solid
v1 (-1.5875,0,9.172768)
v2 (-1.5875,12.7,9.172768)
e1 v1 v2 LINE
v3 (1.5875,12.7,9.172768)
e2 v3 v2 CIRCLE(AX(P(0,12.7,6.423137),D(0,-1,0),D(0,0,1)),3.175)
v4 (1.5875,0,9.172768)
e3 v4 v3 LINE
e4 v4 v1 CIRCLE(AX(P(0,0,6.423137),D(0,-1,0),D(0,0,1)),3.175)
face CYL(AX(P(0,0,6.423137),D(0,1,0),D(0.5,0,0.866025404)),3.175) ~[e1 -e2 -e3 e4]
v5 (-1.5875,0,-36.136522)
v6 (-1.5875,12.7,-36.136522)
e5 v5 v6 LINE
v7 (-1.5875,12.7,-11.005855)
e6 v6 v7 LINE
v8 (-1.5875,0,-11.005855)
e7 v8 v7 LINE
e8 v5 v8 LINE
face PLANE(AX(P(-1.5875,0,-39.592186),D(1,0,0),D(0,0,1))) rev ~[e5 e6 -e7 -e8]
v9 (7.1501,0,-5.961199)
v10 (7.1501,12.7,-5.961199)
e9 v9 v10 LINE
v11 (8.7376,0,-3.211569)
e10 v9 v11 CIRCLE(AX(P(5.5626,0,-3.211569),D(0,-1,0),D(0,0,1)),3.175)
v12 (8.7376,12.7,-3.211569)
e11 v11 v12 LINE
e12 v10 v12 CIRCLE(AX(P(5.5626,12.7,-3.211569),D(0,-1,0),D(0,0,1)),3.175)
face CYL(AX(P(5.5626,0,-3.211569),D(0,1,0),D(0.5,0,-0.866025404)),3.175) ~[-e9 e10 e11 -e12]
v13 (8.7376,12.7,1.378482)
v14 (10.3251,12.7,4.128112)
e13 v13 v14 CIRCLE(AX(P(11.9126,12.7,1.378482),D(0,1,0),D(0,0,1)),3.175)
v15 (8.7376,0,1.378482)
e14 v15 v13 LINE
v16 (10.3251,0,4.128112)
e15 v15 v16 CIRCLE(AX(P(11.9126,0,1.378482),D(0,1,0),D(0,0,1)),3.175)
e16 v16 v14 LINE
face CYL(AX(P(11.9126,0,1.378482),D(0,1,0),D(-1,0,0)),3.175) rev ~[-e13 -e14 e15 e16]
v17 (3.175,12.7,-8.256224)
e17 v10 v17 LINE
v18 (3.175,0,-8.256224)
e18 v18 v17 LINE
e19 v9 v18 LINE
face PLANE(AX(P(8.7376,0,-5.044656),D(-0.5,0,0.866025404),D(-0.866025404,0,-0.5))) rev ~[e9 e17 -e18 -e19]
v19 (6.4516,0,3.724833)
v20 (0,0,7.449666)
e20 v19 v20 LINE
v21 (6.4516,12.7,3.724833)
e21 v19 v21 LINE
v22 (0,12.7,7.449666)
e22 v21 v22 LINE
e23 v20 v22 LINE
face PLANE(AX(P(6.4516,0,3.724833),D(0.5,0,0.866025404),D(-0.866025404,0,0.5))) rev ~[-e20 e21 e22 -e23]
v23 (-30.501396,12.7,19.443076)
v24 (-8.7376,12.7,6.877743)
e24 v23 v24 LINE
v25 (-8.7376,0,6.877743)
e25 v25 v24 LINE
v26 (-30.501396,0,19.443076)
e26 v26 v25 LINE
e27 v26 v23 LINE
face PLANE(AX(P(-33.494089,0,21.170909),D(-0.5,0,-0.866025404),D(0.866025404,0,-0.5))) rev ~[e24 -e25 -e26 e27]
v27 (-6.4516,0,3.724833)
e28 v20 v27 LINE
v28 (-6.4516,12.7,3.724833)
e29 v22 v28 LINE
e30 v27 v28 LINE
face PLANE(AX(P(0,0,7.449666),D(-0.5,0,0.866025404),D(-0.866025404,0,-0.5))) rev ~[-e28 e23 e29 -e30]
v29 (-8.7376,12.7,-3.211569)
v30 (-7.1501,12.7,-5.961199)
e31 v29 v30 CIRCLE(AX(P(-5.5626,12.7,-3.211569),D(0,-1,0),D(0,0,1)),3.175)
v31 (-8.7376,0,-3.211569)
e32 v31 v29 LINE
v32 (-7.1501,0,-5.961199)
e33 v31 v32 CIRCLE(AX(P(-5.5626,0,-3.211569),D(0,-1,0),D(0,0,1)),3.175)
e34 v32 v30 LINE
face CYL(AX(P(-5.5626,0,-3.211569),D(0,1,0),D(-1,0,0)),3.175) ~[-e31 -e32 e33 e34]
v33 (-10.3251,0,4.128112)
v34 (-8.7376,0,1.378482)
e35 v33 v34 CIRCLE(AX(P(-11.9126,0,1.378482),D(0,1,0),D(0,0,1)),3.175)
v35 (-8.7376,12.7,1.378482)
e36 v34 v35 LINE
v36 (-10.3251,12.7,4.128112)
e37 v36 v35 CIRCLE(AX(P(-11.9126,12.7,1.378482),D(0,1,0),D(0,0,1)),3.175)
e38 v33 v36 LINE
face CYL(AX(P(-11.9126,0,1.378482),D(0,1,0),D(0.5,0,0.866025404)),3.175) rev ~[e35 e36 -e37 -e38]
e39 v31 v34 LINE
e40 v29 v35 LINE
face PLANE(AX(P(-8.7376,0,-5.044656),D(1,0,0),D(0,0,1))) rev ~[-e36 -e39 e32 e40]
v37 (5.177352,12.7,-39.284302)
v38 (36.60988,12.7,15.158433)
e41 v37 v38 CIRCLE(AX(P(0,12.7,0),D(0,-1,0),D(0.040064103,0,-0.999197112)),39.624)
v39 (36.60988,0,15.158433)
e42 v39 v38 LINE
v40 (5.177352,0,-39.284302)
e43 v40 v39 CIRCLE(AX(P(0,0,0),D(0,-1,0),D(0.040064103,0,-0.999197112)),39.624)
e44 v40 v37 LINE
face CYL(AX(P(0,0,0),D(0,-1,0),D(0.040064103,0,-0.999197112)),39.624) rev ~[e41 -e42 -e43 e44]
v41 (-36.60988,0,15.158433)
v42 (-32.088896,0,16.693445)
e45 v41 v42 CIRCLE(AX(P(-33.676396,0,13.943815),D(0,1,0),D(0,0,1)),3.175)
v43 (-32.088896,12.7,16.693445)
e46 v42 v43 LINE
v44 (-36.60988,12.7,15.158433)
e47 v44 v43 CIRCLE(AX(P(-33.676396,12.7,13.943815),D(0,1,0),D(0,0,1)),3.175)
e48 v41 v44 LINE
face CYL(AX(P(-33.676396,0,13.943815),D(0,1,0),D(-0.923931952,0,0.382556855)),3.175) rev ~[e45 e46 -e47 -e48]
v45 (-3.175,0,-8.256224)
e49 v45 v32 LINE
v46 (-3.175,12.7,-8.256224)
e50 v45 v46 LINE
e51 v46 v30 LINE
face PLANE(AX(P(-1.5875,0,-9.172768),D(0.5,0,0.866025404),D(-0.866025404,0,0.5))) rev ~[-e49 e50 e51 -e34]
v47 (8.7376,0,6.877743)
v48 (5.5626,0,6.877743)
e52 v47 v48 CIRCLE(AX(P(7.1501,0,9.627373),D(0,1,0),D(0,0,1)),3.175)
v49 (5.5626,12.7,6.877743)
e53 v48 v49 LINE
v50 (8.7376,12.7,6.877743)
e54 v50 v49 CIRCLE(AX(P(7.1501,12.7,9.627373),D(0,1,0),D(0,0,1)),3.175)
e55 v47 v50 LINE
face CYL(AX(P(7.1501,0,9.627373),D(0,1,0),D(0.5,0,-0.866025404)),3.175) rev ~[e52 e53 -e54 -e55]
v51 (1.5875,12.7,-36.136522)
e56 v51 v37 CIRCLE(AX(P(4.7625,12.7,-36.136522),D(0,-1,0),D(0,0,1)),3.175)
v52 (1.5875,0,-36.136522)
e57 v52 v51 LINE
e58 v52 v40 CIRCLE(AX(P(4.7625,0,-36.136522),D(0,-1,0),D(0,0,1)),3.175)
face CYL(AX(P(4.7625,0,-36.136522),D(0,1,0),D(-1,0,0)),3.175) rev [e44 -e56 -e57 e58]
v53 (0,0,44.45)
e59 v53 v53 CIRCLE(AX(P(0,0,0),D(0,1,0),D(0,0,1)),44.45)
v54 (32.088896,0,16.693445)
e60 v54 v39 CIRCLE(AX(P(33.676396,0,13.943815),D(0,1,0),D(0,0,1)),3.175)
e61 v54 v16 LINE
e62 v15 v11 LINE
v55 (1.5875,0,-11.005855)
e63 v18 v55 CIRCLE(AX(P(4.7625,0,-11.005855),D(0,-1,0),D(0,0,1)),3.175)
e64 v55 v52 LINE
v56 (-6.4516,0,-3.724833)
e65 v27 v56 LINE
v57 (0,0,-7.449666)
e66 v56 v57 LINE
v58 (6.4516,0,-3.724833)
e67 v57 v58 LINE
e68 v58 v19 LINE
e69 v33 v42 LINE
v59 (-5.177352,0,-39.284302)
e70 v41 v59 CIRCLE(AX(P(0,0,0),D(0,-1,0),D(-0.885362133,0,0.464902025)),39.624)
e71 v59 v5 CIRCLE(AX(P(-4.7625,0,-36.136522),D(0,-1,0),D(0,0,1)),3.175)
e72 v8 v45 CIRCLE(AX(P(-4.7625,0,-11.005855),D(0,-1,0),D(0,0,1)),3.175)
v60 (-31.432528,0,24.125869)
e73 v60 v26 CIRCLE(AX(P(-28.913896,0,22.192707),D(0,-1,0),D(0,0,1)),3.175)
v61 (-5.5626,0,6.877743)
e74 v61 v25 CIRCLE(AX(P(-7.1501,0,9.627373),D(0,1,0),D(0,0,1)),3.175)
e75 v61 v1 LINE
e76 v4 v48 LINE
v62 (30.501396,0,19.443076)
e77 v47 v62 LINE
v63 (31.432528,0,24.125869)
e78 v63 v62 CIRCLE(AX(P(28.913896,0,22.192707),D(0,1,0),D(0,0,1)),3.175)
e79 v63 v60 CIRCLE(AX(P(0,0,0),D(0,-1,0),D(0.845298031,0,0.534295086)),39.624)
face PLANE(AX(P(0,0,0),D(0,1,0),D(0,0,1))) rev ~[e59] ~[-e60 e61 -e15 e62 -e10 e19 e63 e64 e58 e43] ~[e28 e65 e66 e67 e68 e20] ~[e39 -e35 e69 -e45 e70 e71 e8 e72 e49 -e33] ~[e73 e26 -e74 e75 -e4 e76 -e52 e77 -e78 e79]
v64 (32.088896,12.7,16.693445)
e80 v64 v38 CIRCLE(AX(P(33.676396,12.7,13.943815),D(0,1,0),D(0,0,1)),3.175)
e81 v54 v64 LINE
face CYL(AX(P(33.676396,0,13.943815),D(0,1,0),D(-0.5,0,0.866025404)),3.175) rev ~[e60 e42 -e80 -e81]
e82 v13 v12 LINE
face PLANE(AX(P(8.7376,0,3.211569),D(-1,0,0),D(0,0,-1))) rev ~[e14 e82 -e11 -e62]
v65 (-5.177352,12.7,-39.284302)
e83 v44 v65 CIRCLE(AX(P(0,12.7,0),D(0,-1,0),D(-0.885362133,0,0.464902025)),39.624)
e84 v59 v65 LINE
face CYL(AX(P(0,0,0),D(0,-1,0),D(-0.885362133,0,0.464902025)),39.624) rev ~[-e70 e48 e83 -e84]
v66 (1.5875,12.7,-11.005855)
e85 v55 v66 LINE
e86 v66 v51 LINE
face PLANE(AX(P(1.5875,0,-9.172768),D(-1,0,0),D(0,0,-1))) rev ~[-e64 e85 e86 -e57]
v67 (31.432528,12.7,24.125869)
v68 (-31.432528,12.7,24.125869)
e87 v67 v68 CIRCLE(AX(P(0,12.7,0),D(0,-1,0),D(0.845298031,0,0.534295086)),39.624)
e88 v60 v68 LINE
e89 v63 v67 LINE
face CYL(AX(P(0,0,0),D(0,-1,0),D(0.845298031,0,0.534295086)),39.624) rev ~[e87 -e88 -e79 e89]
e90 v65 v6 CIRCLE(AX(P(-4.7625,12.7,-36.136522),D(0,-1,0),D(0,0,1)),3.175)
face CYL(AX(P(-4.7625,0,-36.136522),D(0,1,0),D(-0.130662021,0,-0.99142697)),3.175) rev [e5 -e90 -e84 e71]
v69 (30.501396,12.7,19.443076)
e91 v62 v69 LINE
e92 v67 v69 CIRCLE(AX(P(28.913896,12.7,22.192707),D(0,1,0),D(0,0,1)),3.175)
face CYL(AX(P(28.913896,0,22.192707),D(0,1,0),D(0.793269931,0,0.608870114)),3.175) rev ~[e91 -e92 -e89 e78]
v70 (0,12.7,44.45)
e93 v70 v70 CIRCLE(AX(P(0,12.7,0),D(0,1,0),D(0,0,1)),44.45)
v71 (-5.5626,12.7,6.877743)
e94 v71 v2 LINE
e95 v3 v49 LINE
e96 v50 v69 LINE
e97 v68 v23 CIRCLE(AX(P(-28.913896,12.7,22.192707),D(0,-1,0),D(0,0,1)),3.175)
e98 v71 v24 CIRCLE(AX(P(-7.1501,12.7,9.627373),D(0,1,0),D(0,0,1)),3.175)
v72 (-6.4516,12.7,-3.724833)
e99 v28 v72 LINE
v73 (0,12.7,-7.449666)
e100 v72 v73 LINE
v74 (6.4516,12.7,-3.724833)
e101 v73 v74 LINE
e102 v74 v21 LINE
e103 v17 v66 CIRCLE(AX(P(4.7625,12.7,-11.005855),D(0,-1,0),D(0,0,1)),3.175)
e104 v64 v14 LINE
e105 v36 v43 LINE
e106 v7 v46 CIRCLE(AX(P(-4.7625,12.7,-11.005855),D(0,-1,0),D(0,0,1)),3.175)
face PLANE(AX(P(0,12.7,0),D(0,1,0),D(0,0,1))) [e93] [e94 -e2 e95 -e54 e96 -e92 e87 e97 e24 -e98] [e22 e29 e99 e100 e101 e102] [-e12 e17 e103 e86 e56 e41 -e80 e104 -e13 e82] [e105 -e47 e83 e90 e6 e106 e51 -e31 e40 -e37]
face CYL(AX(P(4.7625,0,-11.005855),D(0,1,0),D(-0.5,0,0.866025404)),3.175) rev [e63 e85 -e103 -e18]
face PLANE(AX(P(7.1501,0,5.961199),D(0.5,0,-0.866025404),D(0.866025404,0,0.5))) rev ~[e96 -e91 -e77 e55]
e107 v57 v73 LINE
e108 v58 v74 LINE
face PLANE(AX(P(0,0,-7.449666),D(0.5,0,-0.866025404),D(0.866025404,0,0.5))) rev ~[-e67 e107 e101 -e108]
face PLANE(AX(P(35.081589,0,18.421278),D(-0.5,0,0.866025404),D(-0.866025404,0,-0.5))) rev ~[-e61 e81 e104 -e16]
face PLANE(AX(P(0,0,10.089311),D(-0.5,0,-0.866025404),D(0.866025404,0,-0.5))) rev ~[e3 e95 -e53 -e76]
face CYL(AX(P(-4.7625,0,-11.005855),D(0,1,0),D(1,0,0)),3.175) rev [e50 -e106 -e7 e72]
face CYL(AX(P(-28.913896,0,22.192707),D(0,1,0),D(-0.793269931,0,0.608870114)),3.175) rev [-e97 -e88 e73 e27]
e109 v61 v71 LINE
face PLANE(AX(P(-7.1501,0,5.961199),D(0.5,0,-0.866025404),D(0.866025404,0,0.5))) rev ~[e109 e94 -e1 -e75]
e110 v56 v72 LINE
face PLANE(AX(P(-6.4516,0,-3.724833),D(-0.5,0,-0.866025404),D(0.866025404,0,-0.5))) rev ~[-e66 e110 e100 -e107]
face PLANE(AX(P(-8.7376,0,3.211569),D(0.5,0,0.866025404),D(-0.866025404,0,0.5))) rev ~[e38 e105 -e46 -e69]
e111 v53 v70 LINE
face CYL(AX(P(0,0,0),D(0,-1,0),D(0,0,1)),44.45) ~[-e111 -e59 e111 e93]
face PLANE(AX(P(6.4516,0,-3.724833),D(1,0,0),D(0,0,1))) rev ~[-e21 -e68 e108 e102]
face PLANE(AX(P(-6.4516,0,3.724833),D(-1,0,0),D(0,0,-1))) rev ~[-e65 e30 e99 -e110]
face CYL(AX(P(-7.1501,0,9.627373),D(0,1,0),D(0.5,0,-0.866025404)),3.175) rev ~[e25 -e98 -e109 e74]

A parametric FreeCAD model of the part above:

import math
import FreeCAD as App
import Part
import Sketcher
Q = App.Units.Quantity


def edges_at(feature, points):
    """Names of the edges that pass closest to the given points."""
    edges = feature.Shape.Edges
    near = lambda p: min(range(len(edges)), key=lambda i: edges[i].distToShape(Part.Vertex(*p))[0])
    return sorted({f"Edge{near(p) + 1}" for p in points})

doc = App.newDocument("Part")
body = doc.addObject("PartDesign::Body", "Body")

# Sketch on XZ plane
sketch1 = doc.addObject("Sketcher::SketchObject", "Sketch")
body.addObject(sketch1)
sketch1.AttachmentSupport = (doc.XZ_Plane, [""])
sketch1.MapMode = "FlatFace"
sketch1.addGeometry(Part.Circle(App.Vector(0, 0, 0), App.Vector(0, 0, 1), 44), False)
sketch1.addGeometry(Part.ArcOfCircle(Part.Circle(App.Vector(0, 0, 0), App.Vector(0, 0, 1), 40), math.radians(152), math.radians(268)), False)
sketch1.addGeometry(Part.LineSegment(App.Vector(-2, -40, 0), App.Vector(-2, -9, 0)), False)
sketch1.addGeometry(Part.LineSegment(App.Vector(-2, -9, 0), App.Vector(-9, -5, 0)), False)
sketch1.addGeometry(Part.LineSegment(App.Vector(-9, -5, 0), App.Vector(-9, 3, 0)), False)
sketch1.addGeometry(Part.LineSegment(App.Vector(-9, 3, 0), App.Vector(-35, 18, 0)), False)
sketch1.addGeometry(Part.LineSegment(App.Vector(-6, 4, 0), App.Vector(-6, -4, 0)), False)
sketch1.addGeometry(Part.LineSegment(App.Vector(-6, -4, 0), App.Vector(0, -7, 0)), False)
sketch1.addGeometry(Part.LineSegment(App.Vector(0, -7, 0), App.Vector(6, -4, 0)), False)
sketch1.addGeometry(Part.LineSegment(App.Vector(6, -4, 0), App.Vector(6, 4, 0)), False)
sketch1.addGeometry(Part.LineSegment(App.Vector(6, 4, 0), App.Vector(0, 7, 0)), False)
sketch1.addGeometry(Part.LineSegment(App.Vector(0, 7, 0), App.Vector(-6, 4, 0)), False)
sketch1.addGeometry(Part.LineSegment(App.Vector(9, -5, 0), App.Vector(2, -9, 0)), False)
sketch1.addGeometry(Part.LineSegment(App.Vector(2, -9, 0), App.Vector(2, -40, 0)), False)
sketch1.addGeometry(Part.ArcOfCircle(Part.Circle(App.Vector(0, 0, 0), App.Vector(0, 0, 1), 40), math.radians(-88), math.radians(28)), False)
sketch1.addGeometry(Part.LineSegment(App.Vector(35, 18, 0), App.Vector(9, 3, 0)), False)
sketch1.addGeometry(Part.LineSegment(App.Vector(9, 3, 0), App.Vector(9, -5, 0)), False)
sketch1.addGeometry(Part.ArcOfCircle(Part.Circle(App.Vector(0, 0, 0), App.Vector(0, 0, 1), 40), math.radians(32), math.radians(148)), False)
sketch1.addGeometry(Part.LineSegment(App.Vector(-33, 21, 0), App.Vector(-7, 6, 0)), False)
sketch1.addGeometry(Part.LineSegment(App.Vector(-7, 6, 0), App.Vector(0, 10, 0)), False)
sketch1.addGeometry(Part.LineSegment(App.Vector(0, 10, 0), App.Vector(7, 6, 0)), False)
sketch1.addGeometry(Part.LineSegment(App.Vector(7, 6, 0), App.Vector(33, 21, 0)), False)
sketch1.addConstraint(Sketcher.Constraint("Coincident", 1, 2, 2, 1))
sketch1.addConstraint(Sketcher.Constraint("Coincident", 2, 2, 3, 1))
sketch1.addConstraint(Sketcher.Constraint("Coincident", 3, 2, 4, 1))
sketch1.addConstraint(Sketcher.Constraint("Coincident", 4, 2, 5, 1))
sketch1.addConstraint(Sketcher.Constraint("Coincident", 5, 2, 1, 1))
sketch1.addConstraint(Sketcher.Constraint("Coincident", 6, 2, 7, 1))
sketch1.addConstraint(Sketcher.Constraint("Coincident", 7, 2, 8, 1))
sketch1.addConstraint(Sketcher.Constraint("Coincident", 8, 2, 9, 1))
sketch1.addConstraint(Sketcher.Constraint("Coincident", 9, 2, 10, 1))
sketch1.addConstraint(Sketcher.Constraint("Coincident", 10, 2, 11, 1))
sketch1.addConstraint(Sketcher.Constraint("Coincident", 11, 2, 6, 1))
sketch1.addConstraint(Sketcher.Constraint("Coincident", 12, 2, 13, 1))
sketch1.addConstraint(Sketcher.Constraint("Coincident", 13, 2, 14, 1))
sketch1.addConstraint(Sketcher.Constraint("Coincident", 14, 2, 15, 1))
sketch1.addConstraint(Sketcher.Constraint("Coincident", 15, 2, 16, 1))
sketch1.addConstraint(Sketcher.Constraint("Coincident", 16, 2, 12, 1))
sketch1.addConstraint(Sketcher.Constraint("Coincident", 17, 2, 18, 1))
sketch1.addConstraint(Sketcher.Constraint("Coincident", 18, 2, 19, 1))
sketch1.addConstraint(Sketcher.Constraint("Coincident", 19, 2, 20, 1))
sketch1.addConstraint(Sketcher.Constraint("Coincident", 20, 2, 21, 1))
sketch1.addConstraint(Sketcher.Constraint("Coincident", 21, 2, 17, 1))
sketch1.addConstraint(Sketcher.Constraint("Vertical", 2))
sketch1.addConstraint(Sketcher.Constraint("Vertical", 4))
sketch1.addConstraint(Sketcher.Constraint("Vertical", 6))
sketch1.addConstraint(Sketcher.Constraint("Vertical", 9))
sketch1.addConstraint(Sketcher.Constraint("Vertical", 13))
sketch1.addConstraint(Sketcher.Constraint("Vertical", 16))
sketch1.addConstraint(Sketcher.Constraint("Coincident", 0, 3, -1, 1))
sketch1.addConstraint(Sketcher.Constraint("Coincident", 1, 3, -1, 1))
sketch1.addConstraint(Sketcher.Constraint("Coincident", 14, 3, -1, 1))
sketch1.addConstraint(Sketcher.Constraint("Coincident", 17, 3, -1, 1))
sketch1.addConstraint(Sketcher.Constraint("Equal", 1, 14))
sketch1.addConstraint(Sketcher.Constraint("Equal", 14, 17))
sketch1.addConstraint(Sketcher.Constraint("Symmetric", 6, 2, 9, 2, -1, 1))
sketch1.addConstraint(Sketcher.Constraint("Symmetric", 7, 2, 10, 2, -1, 1))
sketch1.addConstraint(Sketcher.Constraint("Symmetric", 2, 2, 12, 2, -2))
sketch1.addConstraint(Sketcher.Constraint("Symmetric", 4, 2, 15, 2, -2))
sketch1.addConstraint(Sketcher.Constraint("Symmetric", 18, 2, 20, 2, -2))
sketch1.addConstraint(Sketcher.Constraint("PointOnObject", 7, 2, -2))
sketch1.addConstraint(Sketcher.Constraint("PointOnObject", 19, 2, -2))
sketch1.addConstraint(Sketcher.Constraint("Parallel", 3, 5))
sketch1.addConstraint(Sketcher.Constraint("Parallel", 5, 7))
sketch1.addConstraint(Sketcher.Constraint("Parallel", 8, 11))
sketch1.addConstraint(Sketcher.Constraint("Parallel", 11, 12))
sketch1.addConstraint(Sketcher.Constraint("Parallel", 12, 15))
sketch1.addConstraint(Sketcher.Constraint("Parallel", 10, 18))
sketch1.addConstraint(Sketcher.Constraint("Parallel", 15, 19))
sketch1.addConstraint(Sketcher.Constraint("Parallel", 18, 20))
sketch1.addConstraint(Sketcher.Constraint("Parallel", 19, 21))
sketch1.addConstraint(Sketcher.Constraint("Equal", 15, 18))
sketch1.addConstraint(Sketcher.Constraint("Equal", 12, 19))
sketch1.addConstraint(Sketcher.Constraint("Diameter", 0, Q("3.5 in")))
sketch1.addConstraint(Sketcher.Constraint("Radius", 1, Q("1.56 in")))
sketch1.addConstraint(Sketcher.Constraint("Angle", 3, Q("150 deg")))
sketch1.addConstraint(Sketcher.Constraint("DistanceX", 3, 2, 6, 2, Q("0.09 in")))
sketch1.addConstraint(Sketcher.Constraint("DistanceX", 1, 2, -1, 1, Q("0.0625 in")))
sketch1.addConstraint(Sketcher.Constraint("DistanceX", 3, 2, -1, 1, Q("0.344 in")))
sketch1.addConstraint(Sketcher.Constraint("DistanceY", 9, 2, 14, 2, Q("0.5786002 in")))
sketch1.addConstraint(Sketcher.Constraint("DistanceY", 2, 1, 2, 2, Q("30.419418 mm")))
sketch1.addConstraint(Sketcher.Constraint("DistanceY", -1, 1, 18, 2, Q("5.961199 mm")))
pad1 = doc.addObject("PartDesign::Pad", "Pad")
body.addObject(pad1)
pad1.Profile = sketch1
pad1.Length = Q("0.5 in")
pad1.Reversed = True
doc.recompute()

fillet = doc.addObject("PartDesign::Fillet", "Fillet")
body.addObject(fillet)
fillet.Base = (pad1, edges_at(pad1, [
    (-8.738, 6.35, -5.045),
    (-1.587, 6.35, -9.173),
    (-1.587, 6.35, -39.592),
    (-35.082, 6.35, 18.421),
    (-8.738, 6.35, 3.212),
    (35.082, 6.35, 18.421),
    (1.587, 6.35, -39.592),
    (1.587, 6.35, -9.173),
    (8.738, 6.35, -5.045),
    (8.738, 6.35, 3.212),
    (-33.494, 6.35, 21.171),
    (33.494, 6.35, 21.171),
    (7.15, 6.35, 5.961),
    (0, 6.35, 10.089),
    (-7.15, 6.35, 5.961),
]))
fillet.Radius = Q("0.125 in")

doc.recompute()
